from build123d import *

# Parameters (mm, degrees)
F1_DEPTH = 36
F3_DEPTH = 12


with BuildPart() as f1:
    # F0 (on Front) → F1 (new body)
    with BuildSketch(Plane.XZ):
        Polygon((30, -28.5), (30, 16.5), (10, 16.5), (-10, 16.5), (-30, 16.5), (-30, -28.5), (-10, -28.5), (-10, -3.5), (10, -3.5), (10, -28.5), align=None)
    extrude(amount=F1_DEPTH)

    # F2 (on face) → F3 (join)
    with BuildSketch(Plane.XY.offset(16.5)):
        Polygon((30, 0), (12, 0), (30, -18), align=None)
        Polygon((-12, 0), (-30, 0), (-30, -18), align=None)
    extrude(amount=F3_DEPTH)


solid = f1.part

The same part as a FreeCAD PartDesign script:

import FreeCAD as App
import Part
import Sketcher
from FreeCAD import Vector


def add_polygon(sketch, points):
    """Adds a closed chain of lines whose ends are joined by coincident constraints."""
    first, n = sketch.GeometryCount, len(points)
    for a, b in zip(points, points[1:] + points[:1]):
        sketch.addGeometry(Part.LineSegment(App.Vector(*a, 0), App.Vector(*b, 0)), False)
    for i in range(n):
        sketch.addConstraint(Sketcher.Constraint("Coincident", first + i, 2, first + (i + 1) % n, 1))

doc = App.newDocument("Part")
body = doc.addObject("PartDesign::Body", "Body")

sketch1 = body.newObject("Sketcher::SketchObject", "Sketch")
sketch1.AttachmentSupport = (doc.getObject("XZ_Plane"), [""])
sketch1.MapMode = "FlatFace"
add_polygon(sketch1, [(30, -28), (30, 16), (-30, 16), (-30, -28), (-10, -28), (-10, -4), (10, -4), (10, -28)])
sketch1.addConstraint(Sketcher.Constraint("Vertical", 0))
sketch1.addConstraint(Sketcher.Constraint("Horizontal", 1))
sketch1.addConstraint(Sketcher.Constraint("Vertical", 2))
sketch1.addConstraint(Sketcher.Constraint("Horizontal", 3))
sketch1.addConstraint(Sketcher.Constraint("Vertical", 4))
sketch1.addConstraint(Sketcher.Constraint("Horizontal", 5))
sketch1.addConstraint(Sketcher.Constraint("Vertical", 6))
sketch1.addConstraint(Sketcher.Constraint("Horizontal", 7))
sketch1.addConstraint(Sketcher.Constraint("Symmetric", 3, 2, 6, 2, -2))
sketch1.addConstraint(Sketcher.Constraint("Equal", 3, 5))
sketch1.addConstraint(Sketcher.Constraint("Equal", 5, 7))
sketch1.addConstraint(Sketcher.Constraint("DistanceX", 1, 2, 1, 1, 60.0))
sketch1.addConstraint(Sketcher.Constraint("DistanceY", 0, 1, 0, 2, 45.0))
sketch1.addConstraint(Sketcher.Constraint("DistanceY", 4, 1, 4, 2, 25.0))
sketch1.addConstraint(Sketcher.Constraint("DistanceY", -1, 1, 0, 2, 16.5))
pad1 = body.newObject("PartDesign::Pad", "Pad")
pad1.Profile = sketch1
pad1.Length = 36

sketch2 = body.newObject("Sketcher::SketchObject", "Sketch001")
sketch2.AttachmentSupport = (doc.getObject("XY_Plane"), [""])
sketch2.MapMode = "FlatFace"
sketch2.AttachmentOffset = App.Placement(Vector(0, 0, 16.5), App.Rotation())
add_polygon(sketch2, [(30, 0), (12, 0), (30, -18)])
add_polygon(sketch2, [(-12, 0), (-30, 0), (-30, -18)])
sketch2.addConstraint(Sketcher.Constraint("Horizontal", 0))
sketch2.addConstraint(Sketcher.Constraint("Vertical", 2))
sketch2.addConstraint(Sketcher.Constraint("Horizontal", 3))
sketch2.addConstraint(Sketcher.Constraint("Vertical", 4))
sketch2.addConstraint(Sketcher.Constraint("Symmetric", 2, 2, 3, 2, -1, 1))
sketch2.addConstraint(Sketcher.Constraint("Symmetric", 0, 2, 5, 2, -2))
sketch2.addConstraint(Sketcher.Constraint("Perpendicular", 1, 5))
sketch2.addConstraint(Sketcher.Constraint("Horizontal", 1, 2, 4, 2))
sketch2.addConstraint(Sketcher.Constraint("DistanceX", 0, 2, 0, 1, 18.0))
sketch2.addConstraint(Sketcher.Constraint("DistanceX", -1, 1, 0, 2, 12.0))
pad2 = body.newObject("PartDesign::Pad", "Pad001")
pad2.Profile = sketch2
pad2.Length = 12

doc.recompute()
